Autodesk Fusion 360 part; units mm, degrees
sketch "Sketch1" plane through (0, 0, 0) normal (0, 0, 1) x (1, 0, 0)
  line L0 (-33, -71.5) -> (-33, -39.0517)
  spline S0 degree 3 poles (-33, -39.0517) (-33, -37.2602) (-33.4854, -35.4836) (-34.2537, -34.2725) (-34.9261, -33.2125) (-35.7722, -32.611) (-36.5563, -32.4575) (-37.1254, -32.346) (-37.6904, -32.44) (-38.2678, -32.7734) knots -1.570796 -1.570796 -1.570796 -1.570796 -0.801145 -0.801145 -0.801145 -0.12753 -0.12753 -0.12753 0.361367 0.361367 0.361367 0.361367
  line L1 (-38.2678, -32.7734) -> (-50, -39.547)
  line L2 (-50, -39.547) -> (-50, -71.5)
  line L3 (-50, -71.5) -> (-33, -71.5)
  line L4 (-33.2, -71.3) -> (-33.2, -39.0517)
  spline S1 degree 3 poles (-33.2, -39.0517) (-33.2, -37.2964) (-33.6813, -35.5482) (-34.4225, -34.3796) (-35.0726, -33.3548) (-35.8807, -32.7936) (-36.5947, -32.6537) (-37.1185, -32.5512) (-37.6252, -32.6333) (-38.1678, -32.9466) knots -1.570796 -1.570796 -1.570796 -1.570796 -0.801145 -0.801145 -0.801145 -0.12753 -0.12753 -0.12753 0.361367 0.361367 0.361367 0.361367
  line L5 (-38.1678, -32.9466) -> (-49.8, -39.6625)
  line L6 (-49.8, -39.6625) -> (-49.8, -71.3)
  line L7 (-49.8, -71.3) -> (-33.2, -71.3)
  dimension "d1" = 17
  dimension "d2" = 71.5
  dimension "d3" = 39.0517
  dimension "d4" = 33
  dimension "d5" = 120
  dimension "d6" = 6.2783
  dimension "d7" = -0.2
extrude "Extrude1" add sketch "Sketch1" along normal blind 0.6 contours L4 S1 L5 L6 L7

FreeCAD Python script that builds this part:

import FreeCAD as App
import Part
import Sketcher
Q = App.Units.Quantity

doc = App.newDocument("Part")
body = doc.addObject("PartDesign::Body", "Body")

# Sketch on XY plane
sketch1 = doc.addObject("Sketcher::SketchObject", "Sketch")
body.addObject(sketch1)
sketch1.AttachmentSupport = (doc.XY_Plane, [""])
sketch1.MapMode = "FlatFace"
sketch1.addGeometry(Part.LineSegment(App.Vector(-49.8, -71.3, 0), App.Vector(-33.2, -71.3, 0)), False)
sketch1.addGeometry(Part.LineSegment(App.Vector(-33.2, -71.3, 0), App.Vector(-33.2, -39.0517, 0)), False)
sketch1.addGeometry(Part.BSplineCurve([App.Vector(-33.2, -39.0517, 0), App.Vector(-33.2, -37.2964, 0), App.Vector(-33.6813, -35.5482, 0), App.Vector(-34.4225, -34.3796, 0), App.Vector(-35.0726, -33.3548, 0), App.Vector(-35.8807, -32.7936, 0), App.Vector(-36.5947, -32.6537, 0), App.Vector(-37.1185, -32.5512, 0), App.Vector(-37.6252, -32.6333, 0), App.Vector(-38.1678, -32.9466, 0)], [4, 3, 3, 4], [-1.570796, -0.801145, -0.12753, 0.361367], False, 3, [1, 1, 1, 1, 1, 1, 1, 1, 1, 1], False), False)
sketch1.addGeometry(Part.LineSegment(App.Vector(-38.1678, -32.9466, 0), App.Vector(-49.8, -39.6625, 0)), False)
sketch1.addGeometry(Part.LineSegment(App.Vector(-49.8, -39.6625, 0), App.Vector(-49.8, -71.3, 0)), False)
sketch1.addConstraint(Sketcher.Constraint("Block", 2))
sketch1.addConstraint(Sketcher.Constraint("Coincident", 0, 2, 1, 1))
sketch1.addConstraint(Sketcher.Constraint("Coincident", 1, 2, 2, 1))
sketch1.addConstraint(Sketcher.Constraint("Coincident", 2, 2, 3, 1))
sketch1.addConstraint(Sketcher.Constraint("Coincident", 3, 2, 4, 1))
sketch1.addConstraint(Sketcher.Constraint("Coincident", 4, 2, 0, 1))
sketch1.addConstraint(Sketcher.Constraint("Horizontal", 0))
sketch1.addConstraint(Sketcher.Constraint("Vertical", 1))
sketch1.addConstraint(Sketcher.Constraint("Vertical", 4))
sketch1.addConstraint(Sketcher.Constraint("Angle", 3, Q("-149.9998 deg")))
sketch1.addConstraint(Sketcher.Constraint("DistanceX", 0, 1, 0, 2, 16.6))
sketch1.addConstraint(Sketcher.Constraint("DistanceY", 0, 2, -1, 1, 71.3))
pad1 = doc.addObject("PartDesign::Pad", "Pad")
body.addObject(pad1)
pad1.Profile = sketch1
pad1.Length = 0.6

doc.recompute()
